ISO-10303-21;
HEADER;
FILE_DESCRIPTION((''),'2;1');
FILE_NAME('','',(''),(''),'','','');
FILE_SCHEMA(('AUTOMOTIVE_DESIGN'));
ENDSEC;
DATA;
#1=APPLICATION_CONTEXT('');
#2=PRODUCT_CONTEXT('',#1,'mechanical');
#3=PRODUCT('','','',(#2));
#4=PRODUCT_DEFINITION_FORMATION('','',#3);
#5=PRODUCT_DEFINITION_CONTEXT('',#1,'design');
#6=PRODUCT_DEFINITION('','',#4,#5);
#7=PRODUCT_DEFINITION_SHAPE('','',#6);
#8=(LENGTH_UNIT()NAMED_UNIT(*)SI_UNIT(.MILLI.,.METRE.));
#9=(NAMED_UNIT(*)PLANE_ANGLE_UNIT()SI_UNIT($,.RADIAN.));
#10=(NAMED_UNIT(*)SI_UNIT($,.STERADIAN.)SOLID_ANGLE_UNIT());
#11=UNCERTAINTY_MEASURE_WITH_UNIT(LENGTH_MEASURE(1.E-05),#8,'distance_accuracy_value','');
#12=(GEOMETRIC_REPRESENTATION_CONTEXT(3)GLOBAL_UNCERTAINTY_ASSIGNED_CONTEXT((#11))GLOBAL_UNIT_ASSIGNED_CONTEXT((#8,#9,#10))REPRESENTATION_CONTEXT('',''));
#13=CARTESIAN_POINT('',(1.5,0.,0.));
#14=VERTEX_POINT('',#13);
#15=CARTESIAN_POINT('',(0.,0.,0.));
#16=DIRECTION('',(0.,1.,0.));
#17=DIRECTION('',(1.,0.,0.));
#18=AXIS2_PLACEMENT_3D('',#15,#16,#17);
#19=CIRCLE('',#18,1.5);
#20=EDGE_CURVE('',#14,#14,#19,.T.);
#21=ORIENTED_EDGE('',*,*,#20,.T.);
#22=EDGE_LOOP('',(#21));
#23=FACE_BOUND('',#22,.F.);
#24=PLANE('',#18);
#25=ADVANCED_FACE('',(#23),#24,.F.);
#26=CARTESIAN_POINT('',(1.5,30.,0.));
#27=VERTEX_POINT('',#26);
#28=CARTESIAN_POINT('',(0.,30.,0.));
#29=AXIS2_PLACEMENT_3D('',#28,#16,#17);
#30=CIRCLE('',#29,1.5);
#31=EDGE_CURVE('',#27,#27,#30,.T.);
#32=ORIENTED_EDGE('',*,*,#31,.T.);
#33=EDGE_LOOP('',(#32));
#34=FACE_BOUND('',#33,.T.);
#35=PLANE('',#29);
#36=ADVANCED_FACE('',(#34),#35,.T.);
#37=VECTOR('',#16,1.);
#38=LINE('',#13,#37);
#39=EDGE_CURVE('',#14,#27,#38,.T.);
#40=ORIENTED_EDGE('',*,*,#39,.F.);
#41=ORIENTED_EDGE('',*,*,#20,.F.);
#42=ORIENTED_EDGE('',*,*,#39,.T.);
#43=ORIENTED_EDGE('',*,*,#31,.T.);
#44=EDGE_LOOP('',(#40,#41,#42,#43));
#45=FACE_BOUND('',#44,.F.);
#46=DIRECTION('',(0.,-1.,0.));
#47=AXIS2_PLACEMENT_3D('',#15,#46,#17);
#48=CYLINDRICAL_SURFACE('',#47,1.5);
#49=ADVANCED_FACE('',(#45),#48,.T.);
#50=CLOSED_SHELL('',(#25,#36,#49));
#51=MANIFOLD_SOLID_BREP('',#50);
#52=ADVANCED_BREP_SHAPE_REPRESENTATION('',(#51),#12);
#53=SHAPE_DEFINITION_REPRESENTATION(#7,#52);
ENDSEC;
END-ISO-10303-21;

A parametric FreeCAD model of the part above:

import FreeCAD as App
import Part
import Sketcher

V = App.Vector

doc = App.newDocument("Part")
body = doc.addObject("PartDesign::Body", "Body")

# Sketch on XZ plane
sketch1 = body.newObject("Sketcher::SketchObject", "Sketch")
sketch1.AttachmentSupport = (doc.getObject("XZ_Plane"), [""])
sketch1.MapMode = "FlatFace"
sketch1.addGeometry(Part.Circle(V(0, 0, 0), V(0, 0, 1), 1.5), False)
sketch1.addConstraint([
    Sketcher.Constraint("Coincident", 0, 3, -1, 1),
    Sketcher.Constraint("Diameter", 0, 3.0),
])
pad1 = body.newObject("PartDesign::Pad", "Pad")
pad1.Profile = sketch1
pad1.Length = 30
pad1.Reversed = True

doc.recompute()
